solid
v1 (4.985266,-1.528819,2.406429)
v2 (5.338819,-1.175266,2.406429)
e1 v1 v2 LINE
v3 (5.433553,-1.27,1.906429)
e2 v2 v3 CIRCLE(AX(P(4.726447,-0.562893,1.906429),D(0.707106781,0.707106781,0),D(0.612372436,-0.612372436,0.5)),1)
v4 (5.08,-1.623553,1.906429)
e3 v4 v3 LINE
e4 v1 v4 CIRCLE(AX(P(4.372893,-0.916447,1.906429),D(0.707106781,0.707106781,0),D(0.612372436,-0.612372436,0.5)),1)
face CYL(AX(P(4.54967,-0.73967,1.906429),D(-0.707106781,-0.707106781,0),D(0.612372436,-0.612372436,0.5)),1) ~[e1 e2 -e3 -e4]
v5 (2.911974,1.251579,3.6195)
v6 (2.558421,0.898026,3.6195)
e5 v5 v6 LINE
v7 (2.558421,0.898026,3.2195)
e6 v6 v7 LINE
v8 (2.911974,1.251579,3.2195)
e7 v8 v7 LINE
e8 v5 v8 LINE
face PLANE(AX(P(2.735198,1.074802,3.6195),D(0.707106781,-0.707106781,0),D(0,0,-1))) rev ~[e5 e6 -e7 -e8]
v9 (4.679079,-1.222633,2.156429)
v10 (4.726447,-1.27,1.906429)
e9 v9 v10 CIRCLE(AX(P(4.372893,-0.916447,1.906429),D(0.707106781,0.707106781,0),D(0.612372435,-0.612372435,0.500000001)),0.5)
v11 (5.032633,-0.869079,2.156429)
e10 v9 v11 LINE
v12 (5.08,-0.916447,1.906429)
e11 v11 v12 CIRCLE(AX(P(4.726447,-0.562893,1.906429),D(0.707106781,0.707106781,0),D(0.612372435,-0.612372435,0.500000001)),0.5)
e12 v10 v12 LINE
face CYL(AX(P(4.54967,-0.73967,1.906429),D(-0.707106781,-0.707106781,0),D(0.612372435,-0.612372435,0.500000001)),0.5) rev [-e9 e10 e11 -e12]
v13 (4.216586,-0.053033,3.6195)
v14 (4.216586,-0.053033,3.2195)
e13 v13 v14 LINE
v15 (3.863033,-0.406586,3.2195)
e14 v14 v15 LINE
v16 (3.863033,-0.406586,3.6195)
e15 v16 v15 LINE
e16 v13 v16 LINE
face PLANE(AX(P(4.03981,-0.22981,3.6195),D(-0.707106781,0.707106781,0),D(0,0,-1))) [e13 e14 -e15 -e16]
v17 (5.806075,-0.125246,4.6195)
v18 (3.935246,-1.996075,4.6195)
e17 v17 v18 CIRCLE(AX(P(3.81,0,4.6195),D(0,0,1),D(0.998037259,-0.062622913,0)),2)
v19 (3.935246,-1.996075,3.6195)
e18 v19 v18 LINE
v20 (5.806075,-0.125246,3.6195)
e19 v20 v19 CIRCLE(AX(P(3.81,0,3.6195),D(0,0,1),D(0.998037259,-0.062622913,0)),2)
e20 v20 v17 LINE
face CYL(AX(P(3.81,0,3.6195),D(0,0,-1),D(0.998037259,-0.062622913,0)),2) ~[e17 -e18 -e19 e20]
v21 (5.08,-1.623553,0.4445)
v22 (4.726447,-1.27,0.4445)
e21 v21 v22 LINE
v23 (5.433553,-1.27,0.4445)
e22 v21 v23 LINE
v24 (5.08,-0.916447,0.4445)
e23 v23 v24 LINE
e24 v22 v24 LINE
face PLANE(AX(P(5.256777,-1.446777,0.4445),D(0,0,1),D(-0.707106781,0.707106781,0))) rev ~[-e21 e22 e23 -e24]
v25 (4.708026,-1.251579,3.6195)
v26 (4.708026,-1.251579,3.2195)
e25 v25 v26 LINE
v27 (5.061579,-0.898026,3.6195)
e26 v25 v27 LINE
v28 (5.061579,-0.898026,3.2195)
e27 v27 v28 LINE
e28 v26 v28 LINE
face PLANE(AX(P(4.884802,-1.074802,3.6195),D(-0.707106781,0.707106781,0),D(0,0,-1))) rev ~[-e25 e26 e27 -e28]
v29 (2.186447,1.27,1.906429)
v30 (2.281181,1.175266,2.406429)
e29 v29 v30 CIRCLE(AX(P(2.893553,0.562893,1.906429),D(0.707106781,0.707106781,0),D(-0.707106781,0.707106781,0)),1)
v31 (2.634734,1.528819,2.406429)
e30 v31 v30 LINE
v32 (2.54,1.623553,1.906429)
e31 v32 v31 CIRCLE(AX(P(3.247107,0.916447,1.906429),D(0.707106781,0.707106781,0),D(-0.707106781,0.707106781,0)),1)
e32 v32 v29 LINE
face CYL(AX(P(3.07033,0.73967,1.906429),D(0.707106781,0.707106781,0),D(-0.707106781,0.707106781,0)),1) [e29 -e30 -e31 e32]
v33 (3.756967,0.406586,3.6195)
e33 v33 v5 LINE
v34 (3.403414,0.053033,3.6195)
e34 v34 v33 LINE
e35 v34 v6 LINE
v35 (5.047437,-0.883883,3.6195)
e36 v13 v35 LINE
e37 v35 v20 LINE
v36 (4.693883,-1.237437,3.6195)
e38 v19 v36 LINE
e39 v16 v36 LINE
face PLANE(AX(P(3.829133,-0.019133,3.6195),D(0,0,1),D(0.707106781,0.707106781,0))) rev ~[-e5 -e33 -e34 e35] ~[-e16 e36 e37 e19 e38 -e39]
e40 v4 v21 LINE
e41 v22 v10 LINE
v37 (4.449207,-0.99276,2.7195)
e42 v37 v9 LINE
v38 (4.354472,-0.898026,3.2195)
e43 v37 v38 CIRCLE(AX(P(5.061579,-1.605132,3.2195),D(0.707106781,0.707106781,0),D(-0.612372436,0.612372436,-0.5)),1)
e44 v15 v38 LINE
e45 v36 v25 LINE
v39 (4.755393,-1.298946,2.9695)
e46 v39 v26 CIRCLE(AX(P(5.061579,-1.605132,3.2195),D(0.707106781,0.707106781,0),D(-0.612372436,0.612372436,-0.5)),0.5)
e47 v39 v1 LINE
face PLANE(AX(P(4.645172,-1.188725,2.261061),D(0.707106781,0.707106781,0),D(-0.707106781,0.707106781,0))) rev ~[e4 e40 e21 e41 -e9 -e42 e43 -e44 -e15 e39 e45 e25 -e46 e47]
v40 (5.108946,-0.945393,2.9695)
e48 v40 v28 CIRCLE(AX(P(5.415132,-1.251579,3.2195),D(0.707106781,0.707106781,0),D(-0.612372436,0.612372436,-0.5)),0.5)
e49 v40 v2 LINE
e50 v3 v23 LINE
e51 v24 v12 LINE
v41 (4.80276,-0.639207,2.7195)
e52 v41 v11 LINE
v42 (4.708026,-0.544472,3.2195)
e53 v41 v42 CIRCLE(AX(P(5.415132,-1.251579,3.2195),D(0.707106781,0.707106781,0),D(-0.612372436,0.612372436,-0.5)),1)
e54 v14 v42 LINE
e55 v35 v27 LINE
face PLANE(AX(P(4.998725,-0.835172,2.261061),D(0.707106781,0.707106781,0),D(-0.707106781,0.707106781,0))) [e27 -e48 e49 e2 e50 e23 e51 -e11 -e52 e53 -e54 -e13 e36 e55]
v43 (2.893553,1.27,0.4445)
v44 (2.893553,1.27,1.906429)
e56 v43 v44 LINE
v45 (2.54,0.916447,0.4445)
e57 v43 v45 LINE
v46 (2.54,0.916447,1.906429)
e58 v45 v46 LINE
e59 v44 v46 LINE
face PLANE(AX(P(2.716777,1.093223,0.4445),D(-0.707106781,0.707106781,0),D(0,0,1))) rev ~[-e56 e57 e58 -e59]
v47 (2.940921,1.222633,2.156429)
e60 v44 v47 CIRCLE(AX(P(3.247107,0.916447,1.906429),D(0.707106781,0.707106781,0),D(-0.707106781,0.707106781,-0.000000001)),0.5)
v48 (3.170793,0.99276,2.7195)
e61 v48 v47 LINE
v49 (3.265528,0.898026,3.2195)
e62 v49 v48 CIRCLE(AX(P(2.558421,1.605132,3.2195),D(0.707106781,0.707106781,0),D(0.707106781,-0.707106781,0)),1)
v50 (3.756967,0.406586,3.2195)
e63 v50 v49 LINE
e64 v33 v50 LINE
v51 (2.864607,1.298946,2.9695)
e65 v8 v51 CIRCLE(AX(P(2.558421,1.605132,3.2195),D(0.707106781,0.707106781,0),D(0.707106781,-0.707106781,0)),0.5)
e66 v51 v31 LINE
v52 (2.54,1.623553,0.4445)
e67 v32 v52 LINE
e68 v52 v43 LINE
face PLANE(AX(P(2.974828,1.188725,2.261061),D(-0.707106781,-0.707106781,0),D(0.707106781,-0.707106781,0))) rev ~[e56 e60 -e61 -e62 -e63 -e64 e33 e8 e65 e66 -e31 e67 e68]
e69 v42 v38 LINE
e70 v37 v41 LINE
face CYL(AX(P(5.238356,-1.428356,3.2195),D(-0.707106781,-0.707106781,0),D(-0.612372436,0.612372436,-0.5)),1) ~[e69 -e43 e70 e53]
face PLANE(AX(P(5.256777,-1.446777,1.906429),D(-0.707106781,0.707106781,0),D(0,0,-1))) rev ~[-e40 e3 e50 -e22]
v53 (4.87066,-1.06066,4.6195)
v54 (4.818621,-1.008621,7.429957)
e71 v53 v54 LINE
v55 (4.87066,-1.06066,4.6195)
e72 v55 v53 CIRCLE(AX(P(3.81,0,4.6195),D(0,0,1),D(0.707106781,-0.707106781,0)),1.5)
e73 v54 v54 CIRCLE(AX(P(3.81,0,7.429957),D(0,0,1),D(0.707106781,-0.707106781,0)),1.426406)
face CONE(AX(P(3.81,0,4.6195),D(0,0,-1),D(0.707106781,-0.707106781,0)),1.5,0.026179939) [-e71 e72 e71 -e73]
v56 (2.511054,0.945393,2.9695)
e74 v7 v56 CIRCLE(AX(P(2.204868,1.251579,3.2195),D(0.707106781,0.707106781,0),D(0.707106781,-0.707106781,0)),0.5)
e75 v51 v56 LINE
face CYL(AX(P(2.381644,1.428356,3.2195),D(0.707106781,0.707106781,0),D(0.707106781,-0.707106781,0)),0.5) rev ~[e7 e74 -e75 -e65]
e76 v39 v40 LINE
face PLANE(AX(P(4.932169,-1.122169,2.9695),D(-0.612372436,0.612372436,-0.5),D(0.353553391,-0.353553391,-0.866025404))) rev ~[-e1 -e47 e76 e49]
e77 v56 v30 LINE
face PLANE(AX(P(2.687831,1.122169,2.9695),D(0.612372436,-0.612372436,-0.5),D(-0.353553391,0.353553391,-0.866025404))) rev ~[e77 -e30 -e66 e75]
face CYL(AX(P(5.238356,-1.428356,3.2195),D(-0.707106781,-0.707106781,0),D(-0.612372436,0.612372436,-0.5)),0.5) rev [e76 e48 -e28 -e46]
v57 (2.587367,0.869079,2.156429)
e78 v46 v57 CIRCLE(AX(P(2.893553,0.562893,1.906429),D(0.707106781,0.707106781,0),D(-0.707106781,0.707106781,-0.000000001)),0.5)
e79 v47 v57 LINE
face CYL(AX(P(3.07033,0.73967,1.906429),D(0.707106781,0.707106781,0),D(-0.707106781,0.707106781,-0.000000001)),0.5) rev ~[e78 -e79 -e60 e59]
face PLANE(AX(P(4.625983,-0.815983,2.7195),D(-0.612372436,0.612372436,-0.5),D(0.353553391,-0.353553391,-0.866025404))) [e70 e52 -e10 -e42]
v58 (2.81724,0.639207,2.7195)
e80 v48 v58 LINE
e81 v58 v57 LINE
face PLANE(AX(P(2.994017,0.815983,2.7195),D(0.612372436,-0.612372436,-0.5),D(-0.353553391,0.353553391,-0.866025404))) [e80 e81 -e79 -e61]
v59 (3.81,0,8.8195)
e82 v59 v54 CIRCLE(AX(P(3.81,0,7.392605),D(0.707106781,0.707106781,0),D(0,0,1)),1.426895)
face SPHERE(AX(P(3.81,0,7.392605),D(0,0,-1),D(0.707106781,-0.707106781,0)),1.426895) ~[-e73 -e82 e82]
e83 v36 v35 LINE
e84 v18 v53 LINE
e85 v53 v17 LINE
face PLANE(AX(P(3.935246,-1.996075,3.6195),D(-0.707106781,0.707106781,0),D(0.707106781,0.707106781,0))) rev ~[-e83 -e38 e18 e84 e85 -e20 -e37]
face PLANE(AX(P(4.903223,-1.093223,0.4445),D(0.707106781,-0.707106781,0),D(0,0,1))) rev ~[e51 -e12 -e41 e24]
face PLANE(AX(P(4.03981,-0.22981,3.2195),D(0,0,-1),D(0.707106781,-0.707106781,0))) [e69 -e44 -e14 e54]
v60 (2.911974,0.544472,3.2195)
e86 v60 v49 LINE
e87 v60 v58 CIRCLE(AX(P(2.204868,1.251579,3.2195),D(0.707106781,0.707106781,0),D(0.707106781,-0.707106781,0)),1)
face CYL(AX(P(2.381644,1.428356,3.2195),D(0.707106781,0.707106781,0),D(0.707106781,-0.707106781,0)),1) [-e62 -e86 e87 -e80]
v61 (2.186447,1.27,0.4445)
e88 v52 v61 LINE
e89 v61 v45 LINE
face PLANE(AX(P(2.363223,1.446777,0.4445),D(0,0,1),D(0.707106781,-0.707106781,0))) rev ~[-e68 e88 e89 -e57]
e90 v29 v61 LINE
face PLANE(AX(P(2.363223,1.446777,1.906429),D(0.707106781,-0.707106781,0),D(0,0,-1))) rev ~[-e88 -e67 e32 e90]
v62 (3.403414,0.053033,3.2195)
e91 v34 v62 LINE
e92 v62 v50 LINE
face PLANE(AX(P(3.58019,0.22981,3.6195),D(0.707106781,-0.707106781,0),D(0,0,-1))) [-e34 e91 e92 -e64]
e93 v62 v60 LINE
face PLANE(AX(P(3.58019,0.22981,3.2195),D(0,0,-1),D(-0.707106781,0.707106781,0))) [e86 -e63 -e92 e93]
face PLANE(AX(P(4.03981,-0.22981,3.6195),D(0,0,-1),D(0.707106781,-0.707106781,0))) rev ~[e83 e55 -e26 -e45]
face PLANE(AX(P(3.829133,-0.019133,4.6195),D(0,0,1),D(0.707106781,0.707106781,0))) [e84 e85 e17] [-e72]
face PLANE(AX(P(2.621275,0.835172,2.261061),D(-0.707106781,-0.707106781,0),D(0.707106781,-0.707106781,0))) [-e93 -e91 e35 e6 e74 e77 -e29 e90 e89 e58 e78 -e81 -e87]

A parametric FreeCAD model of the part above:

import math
import FreeCAD as App
import Part
import Sketcher

V = App.Vector
Q = App.Units.Quantity

doc = App.newDocument("Part")
body = doc.addObject("PartDesign::Body", "Body")

# Sketch on XY plane
sketch1 = body.newObject("Sketcher::SketchObject", "Sketch")
sketch1.AttachmentSupport = (doc.getObject("XY_Plane"), [""])
sketch1.MapMode = "FlatFace"
sketch1.addGeometry([
    Part.ArcOfCircle(Part.Circle(V(0, 0, 0), V(0, 0, 1), 2), math.radians(-49), math.radians(229)),
    Part.LineSegment(V(-1.3, -1.5, 0), V(1.3, -1.5, 0)),
], False)
sketch1.addConstraint([
    Sketcher.Constraint("Coincident", 0, 1, 1, 2),
    Sketcher.Constraint("Coincident", 1, 1, 0, 2),
    Sketcher.Constraint("Horizontal", 1),
    Sketcher.Constraint("Coincident", 0, 3, -1, 1),
    Sketcher.Constraint("Radius", 0, 2.0),
    Sketcher.Constraint("DistanceY", 0, 1, -1, 1, 1.5),
])
pad1 = body.newObject("PartDesign::Pad", "Pad")
pad1.Profile = sketch1
pad1.Length = 1

# Sketch on YZ plane
sketch2 = body.newObject("Sketcher::SketchObject", "Sketch001")
sketch2.AttachmentSupport = (doc.getObject("YZ_Plane"), [""])
sketch2.MapMode = "FlatFace"
sketch2.addGeometry([
    Part.LineSegment(V(0, 1, 0), V(0, 5.2, 0)),
    Part.ArcOfCircle(Part.Circle(V(0, 3.8, 0), V(0, 0, 1), 1.4), math.radians(90), math.radians(179)),
    Part.LineSegment(V(-1.4, 3.8, 0), V(-1.5, 1, 0)),
    Part.LineSegment(V(-1.5, 1, 0), V(0, 1, 0)),
], False)
sketch2.addConstraint([
    Sketcher.Constraint("Coincident", 0, 2, 1, 1),
    Sketcher.Constraint("Tangent", 1, 2, 2, 1),
    Sketcher.Constraint("Coincident", 2, 2, 3, 1),
    Sketcher.Constraint("Coincident", 3, 2, 0, 1),
    Sketcher.Constraint("Vertical", 0),
    Sketcher.Constraint("Horizontal", 3),
    Sketcher.Constraint("PointOnObject", 1, 3, -2),
    Sketcher.Constraint("PointOnObject", 0, 2, -2),
    Sketcher.Constraint("DistanceX", 3, 1, 3, 2, 1.5),
    Sketcher.Constraint("DistanceY", 0, 1, 0, 2, 4.2),
    Sketcher.Constraint("DistanceY", -1, 1, 2, 2, 1.0),
    Sketcher.Constraint("Angle", 2, Q("-91.5 deg")),
])
revolution = body.newObject("PartDesign::Revolution", "Revolution")
revolution.Profile = sketch2
revolution.ReferenceAxis = (sketch2, ["V_Axis"])
revolution.Angle = 360

# Sketch on YZ plane
sketch3 = body.newObject("Sketcher::SketchObject", "Sketch002")
sketch3.AttachmentSupport = (doc.getObject("YZ_Plane"), [""])
sketch3.MapMode = "FlatFace"
sketch3.addGeometry([
    Part.LineSegment(V(-0.33, 0, 0), V(-1.52, 0, 0)),  # 0
    Part.LineSegment(V(-1.52, 0, 0), V(-1.52, -0.4, 0)),  # 1
    Part.ArcOfCircle(Part.Circle(V(-2.02, -0.4, 0), V(0, 0, 1), 0.5), math.radians(-30), math.radians(0)),  # 2
    Part.LineSegment(V(-1.59, -0.65, 0), V(-1.91, -1.21, 0)),  # 3
    Part.ArcOfCircle(Part.Circle(V(-1.05, -1.71, 0), V(0, 0, 1), 1), math.radians(150), math.radians(180)),  # 4
    Part.LineSegment(V(-2.05, -1.71, 0), V(-2.05, -3.17, 0)),  # 5
    Part.LineSegment(V(-2.05, -3.17, 0), V(-1.55, -3.17, 0)),  # 6
    Part.LineSegment(V(-1.55, -3.17, 0), V(-1.55, -1.71, 0)),  # 7
    Part.ArcOfCircle(Part.Circle(V(-1.05, -1.71, 0), V(0, 0, 1), 0.5), math.radians(150), math.radians(180)),  # 8
    Part.LineSegment(V(-1.48, -1.46, 0), V(-1.15, -0.9, 0)),  # 9
    Part.ArcOfCircle(Part.Circle(V(-2.02, -0.4, 0), V(0, 0, 1), 1), math.radians(-30), math.radians(0)),  # 10
    Part.LineSegment(V(-1.02, -0.4, 0), V(-0.33, -0.4, 0)),  # 11
    Part.LineSegment(V(-0.33, -0.4, 0), V(-0.33, 0, 0)),  # 12
    Part.LineSegment(V(1.52, 0, 0), V(0.33, 0, 0)),  # 13
    Part.LineSegment(V(0.33, 0, 0), V(0.33, -0.4, 0)),  # 14
    Part.LineSegment(V(0.33, -0.4, 0), V(1.02, -0.4, 0)),  # 15
    Part.ArcOfCircle(Part.Circle(V(2.02, -0.4, 0), V(0, 0, 1), 1), math.radians(180), math.radians(210)),  # 16
    Part.LineSegment(V(1.15, -0.9, 0), V(1.48, -1.46, 0)),  # 17
    Part.ArcOfCircle(Part.Circle(V(1.05, -1.71, 0), V(0, 0, 1), 0.5), math.radians(0), math.radians(30)),  # 18
    Part.LineSegment(V(1.55, -1.71, 0), V(1.55, -3.17, 0)),  # 19
    Part.LineSegment(V(1.55, -3.17, 0), V(2.05, -3.17, 0)),  # 20
    Part.LineSegment(V(2.05, -3.17, 0), V(2.05, -1.71, 0)),  # 21
    Part.ArcOfCircle(Part.Circle(V(1.05, -1.71, 0), V(0, 0, 1), 1), math.radians(0), math.radians(30)),  # 22
    Part.LineSegment(V(1.91, -1.21, 0), V(1.59, -0.65, 0)),  # 23
    Part.ArcOfCircle(Part.Circle(V(2.02, -0.4, 0), V(0, 0, 1), 0.5), math.radians(180), math.radians(210)),  # 24
    Part.LineSegment(V(1.52, -0.4, 0), V(1.52, 0, 0)),  # 25
], False)
sketch3.addConstraint([
    Sketcher.Constraint("Coincident", 0, 2, 1, 1),
    Sketcher.Constraint("Tangent", 1, 2, 2, 2),
    Sketcher.Constraint("Tangent", 2, 1, 3, 1),
    Sketcher.Constraint("Tangent", 3, 2, 4, 1),
    Sketcher.Constraint("Tangent", 4, 2, 5, 1),
    Sketcher.Constraint("Coincident", 5, 2, 6, 1),
    Sketcher.Constraint("Coincident", 6, 2, 7, 1),
    Sketcher.Constraint("Tangent", 7, 2, 8, 2),
    Sketcher.Constraint("Tangent", 8, 1, 9, 1),
    Sketcher.Constraint("Tangent", 9, 2, 10, 1),
    Sketcher.Constraint("Coincident", 10, 2, 11, 1),
    Sketcher.Constraint("Coincident", 11, 2, 12, 1),
    Sketcher.Constraint("Coincident", 12, 2, 0, 1),
    Sketcher.Constraint("Coincident", 13, 2, 14, 1),
    Sketcher.Constraint("Coincident", 14, 2, 15, 1),
    Sketcher.Constraint("Coincident", 15, 2, 16, 1),
    Sketcher.Constraint("Tangent", 16, 2, 17, 1),
    Sketcher.Constraint("Tangent", 17, 2, 18, 2),
    Sketcher.Constraint("Tangent", 18, 1, 19, 1),
    Sketcher.Constraint("Coincident", 19, 2, 20, 1),
    Sketcher.Constraint("Coincident", 20, 2, 21, 1),
    Sketcher.Constraint("Tangent", 21, 2, 22, 1),
    Sketcher.Constraint("Tangent", 22, 2, 23, 1),
    Sketcher.Constraint("Tangent", 23, 2, 24, 2),
    Sketcher.Constraint("Tangent", 24, 1, 25, 1),
    Sketcher.Constraint("Coincident", 25, 2, 13, 1),
    Sketcher.Constraint("Horizontal", 0),
    Sketcher.Constraint("Vertical", 1),
    Sketcher.Constraint("Vertical", 5),
    Sketcher.Constraint("Horizontal", 6),
    Sketcher.Constraint("Vertical", 7),
    Sketcher.Constraint("Horizontal", 11),
    Sketcher.Constraint("Vertical", 12),
    Sketcher.Constraint("Horizontal", 13),
    Sketcher.Constraint("Vertical", 14),
    Sketcher.Constraint("Horizontal", 15),
    Sketcher.Constraint("Vertical", 19),
    Sketcher.Constraint("Horizontal", 20),
    Sketcher.Constraint("Vertical", 21),
    Sketcher.Constraint("Vertical", 25),
    Sketcher.Constraint("Coincident", 8, 3, 4, 3),
    Sketcher.Constraint("Coincident", 10, 3, 2, 3),
    Sketcher.Constraint("Coincident", 22, 3, 18, 3),
    Sketcher.Constraint("Coincident", 24, 3, 16, 3),
    Sketcher.Constraint("Equal", 2, 8),
    Sketcher.Constraint("Equal", 4, 10),
    Sketcher.Constraint("Equal", 10, 16),
    Sketcher.Constraint("Equal", 8, 18),
    Sketcher.Constraint("Equal", 16, 22),
    Sketcher.Constraint("Equal", 18, 24),
    Sketcher.Constraint("Symmetric", 12, 2, 13, 2, -1, 1),
    Sketcher.Constraint("Symmetric", 2, 3, 16, 3, -2),
    Sketcher.Constraint("Symmetric", 4, 3, 18, 3, -2),
    Sketcher.Constraint("PointOnObject", 0, 2, -1),
    Sketcher.Constraint("Horizontal", 1, 2, 10, 2),
    Sketcher.Constraint("Horizontal", 11, 2, 14, 2),
    Sketcher.Constraint("Horizontal", 6, 2, 19, 2),
    Sketcher.Constraint("Radius", 4, 1.0),
    Sketcher.Constraint("Radius", 2, 0.5),
    Sketcher.Constraint("Angle", 3, Q("-120 deg")),
    Sketcher.Constraint("DistanceY", 1, 2, 1, 1, 0.4),
    Sketcher.Constraint("DistanceX", 0, 2, 0, 1, 1.195),
    Sketcher.Constraint("DistanceX", 2, 3, -1, 1, 2.02),
    Sketcher.Constraint("DistanceY", 5, 2, -1, 1, 3.175),
    Sketcher.Constraint("DistanceY", 5, 2, 5, 1, 1.461929),
])
pad2 = body.newObject("PartDesign::Pad", "Pad001")
pad2.Profile = sketch3
pad2.Length = 0.5
pad2.Midplane = True
body2 = doc.addObject("PartDesign::Body", "Body001")
doc.recompute()

body.Placement = App.Placement(V(-3.81, 0, 3.575), App.Rotation(V(0, 0, 1), 45))
boolean = body2.newObject("PartDesign::Boolean", "Boolean")
boolean.Type = "Fuse"
boolean.addObjects([body])
body3 = doc.addObject("PartDesign::Body", "Body002")
doc.recompute()

body2.Placement = App.Placement(V(7.62, 0, 0.0445), App.Rotation(V(0, 0, 1), 0))
boolean2 = body3.newObject("PartDesign::Boolean", "Boolean001")
boolean2.Type = "Fuse"
boolean2.addObjects([body2])

doc.recompute()
